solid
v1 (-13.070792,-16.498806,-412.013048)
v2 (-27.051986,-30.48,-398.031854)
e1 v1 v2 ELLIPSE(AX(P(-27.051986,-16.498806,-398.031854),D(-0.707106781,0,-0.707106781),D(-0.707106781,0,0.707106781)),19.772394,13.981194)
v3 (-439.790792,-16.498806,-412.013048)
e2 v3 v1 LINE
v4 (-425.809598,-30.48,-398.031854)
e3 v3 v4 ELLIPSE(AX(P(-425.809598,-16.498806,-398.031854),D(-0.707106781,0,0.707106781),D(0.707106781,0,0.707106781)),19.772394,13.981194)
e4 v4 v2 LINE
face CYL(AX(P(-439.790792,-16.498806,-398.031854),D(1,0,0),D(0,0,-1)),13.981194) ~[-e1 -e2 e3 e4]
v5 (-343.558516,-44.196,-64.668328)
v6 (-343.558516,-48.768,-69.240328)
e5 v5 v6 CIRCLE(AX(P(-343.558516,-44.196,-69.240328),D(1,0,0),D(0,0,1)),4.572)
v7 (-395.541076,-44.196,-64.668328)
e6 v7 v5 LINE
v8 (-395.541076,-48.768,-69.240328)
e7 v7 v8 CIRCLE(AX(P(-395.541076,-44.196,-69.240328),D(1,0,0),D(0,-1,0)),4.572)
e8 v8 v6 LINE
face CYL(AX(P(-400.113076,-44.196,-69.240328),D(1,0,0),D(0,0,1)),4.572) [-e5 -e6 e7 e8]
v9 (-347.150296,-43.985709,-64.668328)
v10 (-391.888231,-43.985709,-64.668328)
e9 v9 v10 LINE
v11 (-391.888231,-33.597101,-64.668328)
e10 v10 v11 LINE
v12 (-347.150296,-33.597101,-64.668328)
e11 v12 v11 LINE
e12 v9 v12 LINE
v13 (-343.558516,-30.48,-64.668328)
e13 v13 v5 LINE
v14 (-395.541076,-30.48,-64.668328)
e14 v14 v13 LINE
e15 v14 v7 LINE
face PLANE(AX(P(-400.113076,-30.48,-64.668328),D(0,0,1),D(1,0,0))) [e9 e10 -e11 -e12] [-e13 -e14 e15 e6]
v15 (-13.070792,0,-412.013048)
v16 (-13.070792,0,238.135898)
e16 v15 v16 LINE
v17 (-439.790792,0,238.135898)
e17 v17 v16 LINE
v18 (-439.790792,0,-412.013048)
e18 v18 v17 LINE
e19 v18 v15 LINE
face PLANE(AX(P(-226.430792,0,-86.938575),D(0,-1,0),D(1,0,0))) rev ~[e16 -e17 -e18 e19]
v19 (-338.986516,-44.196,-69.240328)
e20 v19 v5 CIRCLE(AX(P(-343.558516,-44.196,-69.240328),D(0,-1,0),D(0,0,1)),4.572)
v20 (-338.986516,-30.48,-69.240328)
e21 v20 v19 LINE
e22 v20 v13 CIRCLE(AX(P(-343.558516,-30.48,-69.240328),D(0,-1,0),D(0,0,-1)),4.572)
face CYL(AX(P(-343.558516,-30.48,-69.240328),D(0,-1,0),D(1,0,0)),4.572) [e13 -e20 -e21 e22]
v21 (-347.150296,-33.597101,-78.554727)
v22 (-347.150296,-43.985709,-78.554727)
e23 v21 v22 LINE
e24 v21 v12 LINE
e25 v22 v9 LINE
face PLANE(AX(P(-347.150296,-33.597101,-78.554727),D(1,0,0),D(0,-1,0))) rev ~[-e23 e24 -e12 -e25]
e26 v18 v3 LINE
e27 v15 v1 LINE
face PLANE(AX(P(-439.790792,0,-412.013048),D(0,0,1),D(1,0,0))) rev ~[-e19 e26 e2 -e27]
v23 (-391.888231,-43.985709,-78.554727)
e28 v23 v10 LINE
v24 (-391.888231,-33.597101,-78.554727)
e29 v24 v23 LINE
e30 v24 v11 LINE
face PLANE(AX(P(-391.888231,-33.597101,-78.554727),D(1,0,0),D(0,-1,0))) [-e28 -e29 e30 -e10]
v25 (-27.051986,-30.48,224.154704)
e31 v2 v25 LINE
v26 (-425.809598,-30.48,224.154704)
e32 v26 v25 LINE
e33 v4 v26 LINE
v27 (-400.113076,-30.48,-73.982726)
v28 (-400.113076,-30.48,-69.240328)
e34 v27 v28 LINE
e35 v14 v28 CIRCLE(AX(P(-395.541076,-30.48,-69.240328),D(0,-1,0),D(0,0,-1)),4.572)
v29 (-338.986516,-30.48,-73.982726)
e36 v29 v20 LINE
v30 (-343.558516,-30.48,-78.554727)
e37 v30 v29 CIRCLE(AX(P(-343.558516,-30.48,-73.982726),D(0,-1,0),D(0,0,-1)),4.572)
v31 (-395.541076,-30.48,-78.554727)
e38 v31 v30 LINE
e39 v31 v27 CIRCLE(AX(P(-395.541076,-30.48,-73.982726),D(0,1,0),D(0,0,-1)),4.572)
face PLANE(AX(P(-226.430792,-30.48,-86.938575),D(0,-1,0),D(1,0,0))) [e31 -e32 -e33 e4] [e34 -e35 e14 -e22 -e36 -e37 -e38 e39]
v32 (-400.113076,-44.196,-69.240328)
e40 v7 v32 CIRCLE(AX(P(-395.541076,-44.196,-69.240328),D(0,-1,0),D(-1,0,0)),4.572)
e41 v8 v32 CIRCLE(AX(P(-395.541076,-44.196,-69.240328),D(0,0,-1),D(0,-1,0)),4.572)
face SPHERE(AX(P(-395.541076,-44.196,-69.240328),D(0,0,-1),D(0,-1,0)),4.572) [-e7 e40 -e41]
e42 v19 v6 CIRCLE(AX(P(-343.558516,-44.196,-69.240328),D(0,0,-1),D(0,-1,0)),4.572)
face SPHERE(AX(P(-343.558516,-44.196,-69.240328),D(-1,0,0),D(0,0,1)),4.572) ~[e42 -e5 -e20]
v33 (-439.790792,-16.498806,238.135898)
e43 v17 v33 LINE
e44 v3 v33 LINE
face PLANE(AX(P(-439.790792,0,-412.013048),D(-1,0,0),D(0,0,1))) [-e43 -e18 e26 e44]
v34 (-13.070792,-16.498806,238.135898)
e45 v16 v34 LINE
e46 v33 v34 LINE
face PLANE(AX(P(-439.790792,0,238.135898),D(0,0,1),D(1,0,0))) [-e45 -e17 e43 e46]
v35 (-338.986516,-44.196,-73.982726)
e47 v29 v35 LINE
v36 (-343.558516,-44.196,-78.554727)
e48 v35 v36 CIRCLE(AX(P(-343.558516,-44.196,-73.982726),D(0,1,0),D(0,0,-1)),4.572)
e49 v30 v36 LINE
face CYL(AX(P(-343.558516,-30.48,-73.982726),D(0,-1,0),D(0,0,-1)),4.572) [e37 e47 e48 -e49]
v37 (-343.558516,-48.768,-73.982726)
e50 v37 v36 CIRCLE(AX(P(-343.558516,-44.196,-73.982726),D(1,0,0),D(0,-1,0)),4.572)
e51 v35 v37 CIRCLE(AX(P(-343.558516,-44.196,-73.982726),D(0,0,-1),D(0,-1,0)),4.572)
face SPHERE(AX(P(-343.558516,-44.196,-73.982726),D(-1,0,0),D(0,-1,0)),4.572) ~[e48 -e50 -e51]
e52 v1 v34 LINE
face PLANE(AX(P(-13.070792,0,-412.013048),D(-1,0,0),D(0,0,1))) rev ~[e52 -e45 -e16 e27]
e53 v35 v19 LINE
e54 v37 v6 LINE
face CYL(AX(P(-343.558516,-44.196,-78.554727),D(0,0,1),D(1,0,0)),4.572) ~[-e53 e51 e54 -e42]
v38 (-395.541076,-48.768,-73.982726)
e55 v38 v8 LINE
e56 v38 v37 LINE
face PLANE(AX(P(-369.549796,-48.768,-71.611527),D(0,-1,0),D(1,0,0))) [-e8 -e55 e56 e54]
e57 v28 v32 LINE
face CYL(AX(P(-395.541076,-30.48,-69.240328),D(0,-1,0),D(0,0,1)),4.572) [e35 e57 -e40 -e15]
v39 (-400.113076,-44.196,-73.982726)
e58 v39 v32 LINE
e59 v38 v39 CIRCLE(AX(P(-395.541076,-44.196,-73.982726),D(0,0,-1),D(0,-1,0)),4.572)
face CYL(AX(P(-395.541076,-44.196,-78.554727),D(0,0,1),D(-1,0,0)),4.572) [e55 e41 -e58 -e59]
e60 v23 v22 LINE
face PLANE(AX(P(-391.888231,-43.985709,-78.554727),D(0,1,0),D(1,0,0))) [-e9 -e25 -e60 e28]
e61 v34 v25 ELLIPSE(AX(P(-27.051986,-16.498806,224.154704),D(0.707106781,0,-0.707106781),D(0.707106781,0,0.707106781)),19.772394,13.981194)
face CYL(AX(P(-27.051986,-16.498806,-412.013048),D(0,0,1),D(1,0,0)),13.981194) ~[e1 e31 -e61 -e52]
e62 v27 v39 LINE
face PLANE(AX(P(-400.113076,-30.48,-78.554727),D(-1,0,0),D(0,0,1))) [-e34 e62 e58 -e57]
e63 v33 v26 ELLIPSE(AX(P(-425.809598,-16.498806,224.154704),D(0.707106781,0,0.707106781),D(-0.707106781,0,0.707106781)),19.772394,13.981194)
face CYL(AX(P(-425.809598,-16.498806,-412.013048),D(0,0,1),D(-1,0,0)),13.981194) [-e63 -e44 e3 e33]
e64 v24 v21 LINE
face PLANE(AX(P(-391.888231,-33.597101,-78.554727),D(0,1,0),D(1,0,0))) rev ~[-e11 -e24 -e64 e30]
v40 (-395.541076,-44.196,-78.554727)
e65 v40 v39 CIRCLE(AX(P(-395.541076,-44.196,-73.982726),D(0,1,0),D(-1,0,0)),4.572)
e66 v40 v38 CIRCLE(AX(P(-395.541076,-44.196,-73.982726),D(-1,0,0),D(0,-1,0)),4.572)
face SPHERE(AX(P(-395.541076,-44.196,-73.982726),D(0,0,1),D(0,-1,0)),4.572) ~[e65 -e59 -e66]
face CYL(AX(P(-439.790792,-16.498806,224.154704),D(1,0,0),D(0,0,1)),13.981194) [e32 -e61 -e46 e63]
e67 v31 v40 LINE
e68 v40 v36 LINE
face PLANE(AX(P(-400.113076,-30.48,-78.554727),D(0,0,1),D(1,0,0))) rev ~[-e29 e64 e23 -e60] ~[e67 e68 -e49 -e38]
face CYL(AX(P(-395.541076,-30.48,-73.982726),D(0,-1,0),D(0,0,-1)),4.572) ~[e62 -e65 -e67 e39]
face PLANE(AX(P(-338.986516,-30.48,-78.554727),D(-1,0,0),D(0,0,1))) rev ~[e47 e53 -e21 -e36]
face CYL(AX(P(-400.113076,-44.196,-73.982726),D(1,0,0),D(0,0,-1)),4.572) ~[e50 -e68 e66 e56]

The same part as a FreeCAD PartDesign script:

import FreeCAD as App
import Part
import Sketcher
Q = App.Units.Quantity


def edges_at(feature, points):
    """Names of the edges that pass closest to the given points."""
    edges = feature.Shape.Edges
    near = lambda p: min(range(len(edges)), key=lambda i: edges[i].distToShape(Part.Vertex(*p))[0])
    return sorted({f"Edge{near(p) + 1}" for p in points})


def add_polygon(sketch, points):
    """Adds a closed chain of lines whose ends are joined by coincident constraints."""
    first, n = sketch.GeometryCount, len(points)
    for a, b in zip(points, points[1:] + points[:1]):
        sketch.addGeometry(Part.LineSegment(App.Vector(*a, 0), App.Vector(*b, 0)), False)
    for i in range(n):
        sketch.addConstraint(Sketcher.Constraint("Coincident", first + i, 2, first + (i + 1) % n, 1))

doc = App.newDocument("Part")
body = doc.addObject("PartDesign::Body", "Body")

sketch1 = body.newObject("Sketcher::SketchObject", "Sketch")
sketch1.AttachmentSupport = (doc.getObject("XZ_Plane"), [""])
sketch1.MapMode = "FlatFace"
add_polygon(sketch1, [(-440, 238), (-440, -412), (-13, -412), (-13, 238)])
sketch1.addConstraint([
    Sketcher.Constraint("Vertical", 0),
    Sketcher.Constraint("Horizontal", 1),
    Sketcher.Constraint("Vertical", 2),
    Sketcher.Constraint("Horizontal", 3),
    Sketcher.Constraint("DistanceX", 1, 1, 1, 2, Q("16.8 in")),
    Sketcher.Constraint("DistanceY", -1, 1, 2, 2, Q("238.135898 mm")),
    Sketcher.Constraint("DistanceY", 0, 2, 0, 1, Q("650.148946 mm")),
    Sketcher.Constraint("DistanceX", 0, 2, -1, 1, Q("439.790792 mm")),
])
pad1 = body.newObject("PartDesign::Pad", "Pad")
pad1.Profile = sketch1
pad1.Length = Q("1.2 in")
doc.recompute()

fillet = body.newObject("PartDesign::Fillet", "Fillet")
fillet.Base = (pad1, edges_at(pad1, [
    (-439.791, -30.48, -86.939),
    (-226.431, -30.48, 238.136),
    (-13.071, -30.48, -86.939),
    (-226.431, -30.48, -412.013),
]))
fillet.Radius = 13.981194

sketch2 = body.newObject("Sketcher::SketchObject", "Sketch001")
sketch2.AttachmentSupport = (doc.getObject("XZ_Plane"), [""])
sketch2.MapMode = "FlatFace"
sketch2.AttachmentOffset = App.Placement(App.Vector(0, 0, 1.2 * 25.4), App.Rotation())
add_polygon(sketch2, [(-400, -65), (-400, -79), (-339, -79), (-339, -65)])
sketch2.addConstraint([
    Sketcher.Constraint("Vertical", 0),
    Sketcher.Constraint("Horizontal", 1),
    Sketcher.Constraint("Vertical", 2),
    Sketcher.Constraint("Horizontal", 3),
    Sketcher.Constraint("DistanceY", 0, 2, 0, 1, Q("13.886399 mm")),
    Sketcher.Constraint("DistanceX", 1, 1, 1, 2, Q("61.12656 mm")),
    Sketcher.Constraint("DistanceX", 0, 2, -1, 1, Q("400.113076 mm")),
    Sketcher.Constraint("DistanceY", 0, 2, -1, 1, Q("78.554727 mm")),
])
pad2 = body.newObject("PartDesign::Pad", "Pad001")
pad2.Profile = sketch2
pad2.Length = Q("0.72 in")

sketch3 = body.newObject("Sketcher::SketchObject", "Sketch002")
sketch3.AttachmentSupport = (doc.getObject("XY_Plane"), [""])
sketch3.MapMode = "FlatFace"
sketch3.AttachmentOffset = App.Placement(App.Vector(0, 0, -78.554727), App.Rotation())
add_polygon(sketch3, [(-392, -44), (-392, -34), (-347, -34), (-347, -44)])
sketch3.addConstraint([
    Sketcher.Constraint("Vertical", 0),
    Sketcher.Constraint("Horizontal", 1),
    Sketcher.Constraint("Vertical", 2),
    Sketcher.Constraint("Horizontal", 3),
    Sketcher.Constraint("DistanceY", 0, 1, 0, 2, Q("10.388609 mm")),
    Sketcher.Constraint("DistanceY", 0, 2, -1, 1, Q("33.597101 mm")),
    Sketcher.Constraint("DistanceX", 1, 1, 1, 2, Q("44.737935 mm")),
    Sketcher.Constraint("DistanceX", 0, 2, -1, 1, Q("391.888231 mm")),
])
pocket1 = body.newObject("PartDesign::Pocket", "Pocket")
pocket1.Profile = sketch3
pocket1.Length = Q("1.536 in")
pocket1.Reversed = True
doc.recompute()

fillet2 = body.newObject("PartDesign::Fillet", "Fillet001")
fillet2.Base = (pocket1, edges_at(pocket1, [
    (-400.113, -48.768, -71.612),
    (-369.55, -48.768, -64.668),
    (-369.55, -48.768, -78.555),
    (-338.987, -39.624, -64.668),
    (-338.987, -48.768, -71.612),
    (-338.987, -39.624, -78.555),
    (-400.113, -39.624, -78.555),
    (-400.113, -39.624, -64.668),
]))
fillet2.Radius = Q("0.18 in")

doc.recompute()
